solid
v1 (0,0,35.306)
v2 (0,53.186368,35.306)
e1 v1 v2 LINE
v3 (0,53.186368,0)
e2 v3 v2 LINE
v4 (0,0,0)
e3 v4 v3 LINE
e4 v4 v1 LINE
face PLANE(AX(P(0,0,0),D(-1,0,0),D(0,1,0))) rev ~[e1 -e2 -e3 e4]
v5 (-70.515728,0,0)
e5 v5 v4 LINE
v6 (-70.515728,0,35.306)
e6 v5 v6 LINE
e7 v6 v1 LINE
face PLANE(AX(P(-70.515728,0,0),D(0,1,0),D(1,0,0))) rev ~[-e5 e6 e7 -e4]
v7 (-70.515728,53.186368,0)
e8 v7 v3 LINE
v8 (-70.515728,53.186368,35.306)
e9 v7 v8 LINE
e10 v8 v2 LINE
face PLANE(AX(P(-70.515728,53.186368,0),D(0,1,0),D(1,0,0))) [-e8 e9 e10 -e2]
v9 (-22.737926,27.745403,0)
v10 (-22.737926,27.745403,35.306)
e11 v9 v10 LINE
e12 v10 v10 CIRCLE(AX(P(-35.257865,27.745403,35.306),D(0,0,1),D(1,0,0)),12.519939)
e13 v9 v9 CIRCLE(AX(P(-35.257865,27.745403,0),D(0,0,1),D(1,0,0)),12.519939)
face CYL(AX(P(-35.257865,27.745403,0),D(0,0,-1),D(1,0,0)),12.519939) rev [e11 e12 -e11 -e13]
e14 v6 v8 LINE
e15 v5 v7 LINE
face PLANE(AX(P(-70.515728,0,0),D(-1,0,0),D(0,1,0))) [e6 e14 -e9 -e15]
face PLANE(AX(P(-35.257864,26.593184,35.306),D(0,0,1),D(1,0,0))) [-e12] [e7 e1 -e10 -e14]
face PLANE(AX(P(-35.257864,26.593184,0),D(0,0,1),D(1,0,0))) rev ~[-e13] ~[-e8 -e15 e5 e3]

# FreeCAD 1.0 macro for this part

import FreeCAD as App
import Part
import Sketcher
Q = App.Units.Quantity


def add_polygon(sketch, points):
    """Adds a closed chain of lines whose ends are joined by coincident constraints."""
    first, n = sketch.GeometryCount, len(points)
    for a, b in zip(points, points[1:] + points[:1]):
        sketch.addGeometry(Part.LineSegment(App.Vector(*a, 0), App.Vector(*b, 0)), False)
    for i in range(n):
        sketch.addConstraint(Sketcher.Constraint("Coincident", first + i, 2, first + (i + 1) % n, 1))

doc = App.newDocument("Part")
body = doc.addObject("PartDesign::Body", "Body")

# Sketch on XY plane
sketch1 = body.newObject("Sketcher::SketchObject", "Sketch")
sketch1.AttachmentSupport = (doc.getObject("XY_Plane"), [""])
sketch1.MapMode = "FlatFace"
add_polygon(sketch1, [(-70.515728, 53.186368), (-70.515728, 0), (0, 0), (0, 53.186368)])  # lines 0-3
sketch1.addGeometry(Part.Circle(App.Vector(-35.257865, 27.745403, 0), App.Vector(0, 0, 1), 12.519939), False)  # 4
sketch1.addConstraint([
    Sketcher.Constraint("Vertical", 0),
    Sketcher.Constraint("Horizontal", 1),
    Sketcher.Constraint("Vertical", 2),
    Sketcher.Constraint("Horizontal", 3),
    Sketcher.Constraint("Coincident", 1, 2, -1, 1),
    Sketcher.Constraint("Diameter", 4, Q("25.039878 mm")),
    Sketcher.Constraint("DistanceX", 1, 1, 1, 2, Q("70.515729 mm")),
    Sketcher.Constraint("DistanceY", 0, 2, 0, 1, Q("53.186368 mm")),
    Sketcher.Constraint("DistanceX", 4, 3, -1, 1, Q("35.257865 mm")),
    Sketcher.Constraint("DistanceY", -1, 1, 4, 3, Q("27.745403 mm")),
])
pad1 = body.newObject("PartDesign::Pad", "Pad")
pad1.Profile = sketch1
pad1.Length = Q("1.39 in")

doc.recompute()
